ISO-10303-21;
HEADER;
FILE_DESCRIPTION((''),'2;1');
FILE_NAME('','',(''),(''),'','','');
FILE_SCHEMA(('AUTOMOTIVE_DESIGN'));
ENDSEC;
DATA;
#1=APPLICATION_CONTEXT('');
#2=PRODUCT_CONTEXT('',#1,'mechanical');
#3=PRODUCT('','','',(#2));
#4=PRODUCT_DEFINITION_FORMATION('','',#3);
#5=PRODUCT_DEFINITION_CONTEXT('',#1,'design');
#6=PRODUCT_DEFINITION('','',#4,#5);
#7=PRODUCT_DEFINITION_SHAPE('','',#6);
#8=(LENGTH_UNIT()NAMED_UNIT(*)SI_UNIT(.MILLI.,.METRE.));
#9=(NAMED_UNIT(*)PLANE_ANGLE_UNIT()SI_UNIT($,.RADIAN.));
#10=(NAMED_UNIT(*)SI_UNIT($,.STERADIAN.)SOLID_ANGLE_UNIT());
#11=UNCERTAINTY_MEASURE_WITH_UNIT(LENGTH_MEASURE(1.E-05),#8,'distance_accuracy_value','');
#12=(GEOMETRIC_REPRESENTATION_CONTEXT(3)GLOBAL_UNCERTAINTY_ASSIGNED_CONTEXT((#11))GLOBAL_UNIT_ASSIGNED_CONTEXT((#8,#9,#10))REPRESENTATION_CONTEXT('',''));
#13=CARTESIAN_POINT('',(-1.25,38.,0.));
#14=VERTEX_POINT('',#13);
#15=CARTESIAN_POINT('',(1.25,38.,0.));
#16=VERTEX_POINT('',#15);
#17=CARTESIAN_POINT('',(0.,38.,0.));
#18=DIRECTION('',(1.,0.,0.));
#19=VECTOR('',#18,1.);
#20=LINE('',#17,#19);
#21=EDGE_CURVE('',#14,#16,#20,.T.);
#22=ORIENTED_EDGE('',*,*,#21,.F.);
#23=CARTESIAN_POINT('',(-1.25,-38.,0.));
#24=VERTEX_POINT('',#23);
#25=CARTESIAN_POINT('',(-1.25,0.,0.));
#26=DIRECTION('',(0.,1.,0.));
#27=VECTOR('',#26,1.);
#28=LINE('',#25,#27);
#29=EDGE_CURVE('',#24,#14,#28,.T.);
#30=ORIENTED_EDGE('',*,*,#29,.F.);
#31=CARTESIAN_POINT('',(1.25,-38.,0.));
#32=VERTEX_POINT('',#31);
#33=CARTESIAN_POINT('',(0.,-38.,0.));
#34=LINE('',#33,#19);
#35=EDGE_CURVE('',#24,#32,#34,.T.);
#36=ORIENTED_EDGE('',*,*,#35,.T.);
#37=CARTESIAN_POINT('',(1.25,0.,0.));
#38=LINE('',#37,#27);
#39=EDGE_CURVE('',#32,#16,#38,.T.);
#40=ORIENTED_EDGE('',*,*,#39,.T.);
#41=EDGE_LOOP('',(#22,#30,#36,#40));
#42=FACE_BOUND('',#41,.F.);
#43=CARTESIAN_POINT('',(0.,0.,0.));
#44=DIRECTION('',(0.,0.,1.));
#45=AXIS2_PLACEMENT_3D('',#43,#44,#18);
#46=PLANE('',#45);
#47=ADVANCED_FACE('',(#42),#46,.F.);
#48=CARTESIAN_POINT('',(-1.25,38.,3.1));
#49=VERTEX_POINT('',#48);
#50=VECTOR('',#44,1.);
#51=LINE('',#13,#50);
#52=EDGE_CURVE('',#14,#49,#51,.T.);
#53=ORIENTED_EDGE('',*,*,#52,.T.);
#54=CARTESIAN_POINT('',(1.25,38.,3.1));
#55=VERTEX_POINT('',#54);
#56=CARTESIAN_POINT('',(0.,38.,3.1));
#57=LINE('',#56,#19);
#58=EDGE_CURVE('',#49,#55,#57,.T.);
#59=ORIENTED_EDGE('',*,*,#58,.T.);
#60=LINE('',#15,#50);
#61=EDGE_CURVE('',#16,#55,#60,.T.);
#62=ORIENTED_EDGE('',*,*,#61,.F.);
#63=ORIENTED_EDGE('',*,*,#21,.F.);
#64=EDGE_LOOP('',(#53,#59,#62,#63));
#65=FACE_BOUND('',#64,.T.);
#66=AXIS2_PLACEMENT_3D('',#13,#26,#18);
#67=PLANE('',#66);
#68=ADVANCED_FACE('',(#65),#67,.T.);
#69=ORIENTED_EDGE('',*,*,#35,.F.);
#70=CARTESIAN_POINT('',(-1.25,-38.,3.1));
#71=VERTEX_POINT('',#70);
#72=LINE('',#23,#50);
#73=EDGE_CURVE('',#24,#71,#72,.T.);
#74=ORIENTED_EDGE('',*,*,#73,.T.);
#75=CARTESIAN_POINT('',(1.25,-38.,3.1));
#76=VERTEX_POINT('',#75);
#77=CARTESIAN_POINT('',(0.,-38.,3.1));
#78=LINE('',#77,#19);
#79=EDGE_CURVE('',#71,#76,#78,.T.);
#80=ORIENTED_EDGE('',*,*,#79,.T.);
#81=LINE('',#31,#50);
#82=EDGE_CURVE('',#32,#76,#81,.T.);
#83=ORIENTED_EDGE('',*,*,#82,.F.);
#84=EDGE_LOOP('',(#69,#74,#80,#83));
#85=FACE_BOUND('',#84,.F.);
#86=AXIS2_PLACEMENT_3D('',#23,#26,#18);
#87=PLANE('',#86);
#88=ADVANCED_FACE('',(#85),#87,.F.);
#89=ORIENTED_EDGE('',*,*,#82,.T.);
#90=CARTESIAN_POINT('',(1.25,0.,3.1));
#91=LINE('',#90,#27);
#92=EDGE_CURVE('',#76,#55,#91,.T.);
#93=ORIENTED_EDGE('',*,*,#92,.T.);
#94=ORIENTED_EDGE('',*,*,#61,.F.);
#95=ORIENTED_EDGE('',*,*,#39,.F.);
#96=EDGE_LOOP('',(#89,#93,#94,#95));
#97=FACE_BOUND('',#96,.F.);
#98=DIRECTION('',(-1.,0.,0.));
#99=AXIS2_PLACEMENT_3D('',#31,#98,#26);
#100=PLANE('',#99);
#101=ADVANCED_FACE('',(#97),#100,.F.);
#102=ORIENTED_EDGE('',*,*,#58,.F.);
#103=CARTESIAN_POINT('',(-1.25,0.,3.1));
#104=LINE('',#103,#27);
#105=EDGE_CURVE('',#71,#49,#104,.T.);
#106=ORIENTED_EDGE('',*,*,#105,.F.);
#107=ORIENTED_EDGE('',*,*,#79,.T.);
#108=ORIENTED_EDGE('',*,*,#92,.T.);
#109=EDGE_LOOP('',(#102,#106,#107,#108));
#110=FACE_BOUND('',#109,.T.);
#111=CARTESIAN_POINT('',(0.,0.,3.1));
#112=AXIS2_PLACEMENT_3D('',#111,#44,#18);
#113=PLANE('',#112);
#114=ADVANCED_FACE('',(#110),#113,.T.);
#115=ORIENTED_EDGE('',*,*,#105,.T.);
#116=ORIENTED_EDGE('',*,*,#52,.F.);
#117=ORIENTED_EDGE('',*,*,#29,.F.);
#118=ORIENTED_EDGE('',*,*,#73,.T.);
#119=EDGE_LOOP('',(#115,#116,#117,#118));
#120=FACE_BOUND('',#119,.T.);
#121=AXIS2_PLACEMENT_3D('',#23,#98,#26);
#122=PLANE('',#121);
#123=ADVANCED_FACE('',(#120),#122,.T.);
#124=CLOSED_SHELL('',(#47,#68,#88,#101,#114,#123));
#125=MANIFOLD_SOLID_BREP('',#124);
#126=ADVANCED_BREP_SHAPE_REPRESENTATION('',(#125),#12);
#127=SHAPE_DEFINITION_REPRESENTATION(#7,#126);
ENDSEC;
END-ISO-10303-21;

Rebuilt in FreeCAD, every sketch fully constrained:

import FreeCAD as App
import Part
import Sketcher
Q = App.Units.Quantity

doc = App.newDocument("Part")
body = doc.addObject("PartDesign::Body", "Body")

# Sketch on XY plane
sketch1 = body.newObject("Sketcher::SketchObject", "Sketch")
sketch1.AttachmentSupport = (doc.getObject("XY_Plane"), [""])
sketch1.MapMode = "FlatFace"
sketch1.addGeometry([
    Part.LineSegment(App.Vector(-1.2, 38, 0), App.Vector(-1.2, -38, 0)),
    Part.LineSegment(App.Vector(-1.2, -38, 0), App.Vector(1.2, -38, 0)),
    Part.LineSegment(App.Vector(1.2, -38, 0), App.Vector(1.2, 38, 0)),
    Part.LineSegment(App.Vector(1.2, 38, 0), App.Vector(-1.2, 38, 0)),
], False)
sketch1.addConstraint([
    Sketcher.Constraint("Coincident", 0, 2, 1, 1),
    Sketcher.Constraint("Coincident", 1, 2, 2, 1),
    Sketcher.Constraint("Coincident", 2, 2, 3, 1),
    Sketcher.Constraint("Coincident", 3, 2, 0, 1),
    Sketcher.Constraint("Vertical", 0),
    Sketcher.Constraint("Horizontal", 1),
    Sketcher.Constraint("Vertical", 2),
    Sketcher.Constraint("Horizontal", 3),
    Sketcher.Constraint("Symmetric", 0, 2, 2, 2, -1, 1),
    Sketcher.Constraint("DistanceY", 0, 2, 0, 1, Q("76 mm")),
    Sketcher.Constraint("DistanceX", 1, 1, 1, 2, Q("2.5 mm")),
])
pad1 = body.newObject("PartDesign::Pad", "Pad")
pad1.Profile = sketch1
pad1.Length = 3.1

doc.recompute()
